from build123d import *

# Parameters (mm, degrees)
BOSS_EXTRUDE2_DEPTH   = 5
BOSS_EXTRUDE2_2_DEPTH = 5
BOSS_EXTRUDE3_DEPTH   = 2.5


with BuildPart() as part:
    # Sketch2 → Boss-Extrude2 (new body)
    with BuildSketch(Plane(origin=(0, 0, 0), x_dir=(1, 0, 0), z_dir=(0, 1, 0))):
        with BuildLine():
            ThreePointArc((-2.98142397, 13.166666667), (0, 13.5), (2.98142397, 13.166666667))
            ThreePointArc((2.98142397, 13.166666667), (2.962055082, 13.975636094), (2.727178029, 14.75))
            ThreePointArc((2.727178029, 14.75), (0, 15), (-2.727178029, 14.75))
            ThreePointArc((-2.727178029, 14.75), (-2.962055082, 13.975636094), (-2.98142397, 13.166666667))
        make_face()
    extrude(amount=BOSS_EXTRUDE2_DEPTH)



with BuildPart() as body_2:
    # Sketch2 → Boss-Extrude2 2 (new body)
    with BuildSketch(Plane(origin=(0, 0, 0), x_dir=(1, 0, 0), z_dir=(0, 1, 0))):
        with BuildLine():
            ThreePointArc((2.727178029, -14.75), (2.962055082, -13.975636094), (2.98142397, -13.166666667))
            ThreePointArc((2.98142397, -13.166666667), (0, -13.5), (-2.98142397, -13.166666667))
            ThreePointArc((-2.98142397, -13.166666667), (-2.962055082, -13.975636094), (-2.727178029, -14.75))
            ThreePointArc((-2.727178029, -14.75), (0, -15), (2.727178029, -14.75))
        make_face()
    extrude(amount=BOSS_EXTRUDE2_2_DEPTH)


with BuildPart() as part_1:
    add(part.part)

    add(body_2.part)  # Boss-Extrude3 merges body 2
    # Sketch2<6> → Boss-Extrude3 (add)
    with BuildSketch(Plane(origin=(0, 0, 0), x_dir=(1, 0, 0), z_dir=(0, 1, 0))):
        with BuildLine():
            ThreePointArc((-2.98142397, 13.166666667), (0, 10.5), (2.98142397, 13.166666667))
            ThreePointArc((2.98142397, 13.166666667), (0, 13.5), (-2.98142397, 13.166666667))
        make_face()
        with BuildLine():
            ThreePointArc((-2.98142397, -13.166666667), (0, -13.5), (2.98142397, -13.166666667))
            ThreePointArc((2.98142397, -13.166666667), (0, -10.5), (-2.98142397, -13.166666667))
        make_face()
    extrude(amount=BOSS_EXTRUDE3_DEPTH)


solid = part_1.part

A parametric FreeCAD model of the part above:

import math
import FreeCAD as App
import Part
import Sketcher

V = App.Vector

doc = App.newDocument("Part")
params = doc.addObject("Spreadsheet::Sheet", "Params")
for row, (alias, value) in enumerate([
    ("sketch1_radius", "3 mm"),
    ("sketch1_radius2", "15 mm"),
    ("sketch1_radius3", "13.5 mm"),
    ("pad1_length", "5 mm"),
    ("sketch2_radius", "3 mm"),
    ("sketch2_radius2", "15 mm"),
    ("sketch2_radius3", "13.5 mm"),
    ("pad2_length", "5 mm"),
    ("sketch3_radius", "3 mm"),
    ("sketch3_radius2", "13.5 mm"),
    ("pad3_length", "2.5 mm"),
], start=1):
    params.set(f"A{row}", alias)
    params.set(f"B{row}", "=" + value)
    params.setAlias(f"B{row}", alias)

body = doc.addObject("PartDesign::Body", "Body")

# Sketch on XZ plane
sketch1 = doc.addObject("Sketcher::SketchObject", "Sketch")
body.addObject(sketch1)
sketch1.AttachmentSupport = (doc.XZ_Plane, [""])
sketch1.MapMode = "FlatFace"
sketch1.addGeometry([
    Part.ArcOfCircle(Part.Circle(V(0, 0, 0), V(0, 0, 1), 13.5), math.radians(-103), math.radians(-77)),
    Part.ArcOfCircle(Part.Circle(V(0, -13.5, 0), V(0, 0, 1), 3), math.radians(-25), math.radians(6)),
    Part.ArcOfCircle(Part.Circle(V(0, 0, 0), V(0, 0, 1), 15), math.radians(-100), math.radians(-80)),
    Part.ArcOfCircle(Part.Circle(V(0, -13.5, 0), V(0, 0, 1), 3), math.radians(174), math.radians(205)),
], False)
sketch1.addConstraint([
    Sketcher.Constraint("Coincident", 0, 2, 1, 2),
    Sketcher.Constraint("Coincident", 1, 1, 2, 2),
    Sketcher.Constraint("Coincident", 2, 1, 3, 2),
    Sketcher.Constraint("Coincident", 3, 1, 0, 1),
    Sketcher.Constraint("Coincident", 0, 3, -1, 1),
    Sketcher.Constraint("Coincident", 2, 3, -1, 1),
    Sketcher.Constraint("Coincident", 3, 3, 1, 3),
    Sketcher.Constraint("Equal", 1, 3),
    Sketcher.Constraint("PointOnObject", 1, 3, -2),
    Sketcher.Constraint("Radius", 1, 3.0),
    Sketcher.Constraint("Radius", 2, 15.0),
    Sketcher.Constraint("Radius", 0, 13.5),
    Sketcher.Constraint("DistanceY", 1, 3, -1, 1, 13.5),
])
sketch1.setExpression("Constraints[9]", "Params.sketch1_radius")
sketch1.setExpression("Constraints[10]", "Params.sketch1_radius2")
sketch1.setExpression("Constraints[11]", "Params.sketch1_radius3")
pad1 = doc.addObject("PartDesign::Pad", "Pad")
body.addObject(pad1)
pad1.Profile = sketch1
pad1.setExpression("Length", "Params.pad1_length")
pad1.Reversed = True
body2 = doc.addObject("PartDesign::Body", "Body001")

# Sketch on XZ plane
sketch2 = doc.addObject("Sketcher::SketchObject", "Sketch001")
body2.addObject(sketch2)
sketch2.AttachmentSupport = (doc.getObject("XZ_Plane001"), [""])
sketch2.MapMode = "FlatFace"
sketch2.addGeometry([
    Part.ArcOfCircle(Part.Circle(V(0, 13.5, 0), V(0, 0, 1), 3), math.radians(-6), math.radians(25)),
    Part.ArcOfCircle(Part.Circle(V(0, 0, 0), V(0, 0, 1), 13.5), math.radians(77), math.radians(103)),
    Part.ArcOfCircle(Part.Circle(V(0, 13.5, 0), V(0, 0, 1), 3), math.radians(155), math.radians(186)),
    Part.ArcOfCircle(Part.Circle(V(0, 0, 0), V(0, 0, 1), 15), math.radians(80), math.radians(100)),
], False)
sketch2.addConstraint([
    Sketcher.Constraint("Coincident", 0, 1, 1, 1),
    Sketcher.Constraint("Coincident", 1, 2, 2, 2),
    Sketcher.Constraint("Coincident", 2, 1, 3, 2),
    Sketcher.Constraint("Coincident", 3, 1, 0, 2),
    Sketcher.Constraint("Coincident", 1, 3, -1, 1),
    Sketcher.Constraint("Coincident", 3, 3, -1, 1),
    Sketcher.Constraint("Coincident", 2, 3, 0, 3),
    Sketcher.Constraint("Equal", 0, 2),
    Sketcher.Constraint("PointOnObject", 0, 3, -2),
    Sketcher.Constraint("Radius", 0, 3.0),
    Sketcher.Constraint("Radius", 3, 15.0),
    Sketcher.Constraint("Radius", 1, 13.5),
    Sketcher.Constraint("DistanceY", -1, 1, 0, 3, 13.5),
])
sketch2.setExpression("Constraints[9]", "Params.sketch2_radius")
sketch2.setExpression("Constraints[10]", "Params.sketch2_radius2")
sketch2.setExpression("Constraints[11]", "Params.sketch2_radius3")
pad2 = doc.addObject("PartDesign::Pad", "Pad001")
body2.addObject(pad2)
pad2.Profile = sketch2
pad2.setExpression("Length", "Params.pad2_length")
pad2.Reversed = True
body.AllowCompound = True
doc.recompute()

boolean = doc.addObject("PartDesign::Boolean", "Boolean")
body.addObject(boolean)
boolean.Type = "Fuse"
boolean.addObjects([body2])

# Sketch on XZ plane
sketch3 = doc.addObject("Sketcher::SketchObject", "Sketch002")
body.addObject(sketch3)
sketch3.AttachmentSupport = (doc.XZ_Plane, [""])
sketch3.MapMode = "FlatFace"
sketch3.addGeometry([
    Part.ArcOfCircle(Part.Circle(V(0, -13.5, 0), V(0, 0, 1), 3), math.radians(6), math.radians(174)),
    Part.ArcOfCircle(Part.Circle(V(0, 0, 0), V(0, 0, 1), 13.5), math.radians(-103), math.radians(-77)),
    Part.ArcOfCircle(Part.Circle(V(0, 0, 0), V(0, 0, 1), 13.5), math.radians(77), math.radians(103)),
    Part.ArcOfCircle(Part.Circle(V(0, 13.5, 0), V(0, 0, 1), 3), math.radians(-174), math.radians(-6)),
], False)
sketch3.addConstraint([
    Sketcher.Constraint("Coincident", 0, 1, 1, 2),
    Sketcher.Constraint("Coincident", 1, 1, 0, 2),
    Sketcher.Constraint("Coincident", 2, 1, 3, 2),
    Sketcher.Constraint("Coincident", 3, 1, 2, 2),
    Sketcher.Constraint("Coincident", 1, 3, -1, 1),
    Sketcher.Constraint("Coincident", 2, 3, -1, 1),
    Sketcher.Constraint("Equal", 1, 2),
    Sketcher.Constraint("Equal", 0, 3),
    Sketcher.Constraint("Symmetric", 0, 3, 3, 3, -1, 1),
    Sketcher.Constraint("PointOnObject", 0, 3, -2),
    Sketcher.Constraint("Radius", 0, 3.0),
    Sketcher.Constraint("Radius", 1, 13.5),
    Sketcher.Constraint("DistanceY", 0, 3, 3, 3, 27.0),
])
sketch3.setExpression("Constraints[10]", "Params.sketch3_radius")
sketch3.setExpression("Constraints[11]", "Params.sketch3_radius2")
pad3 = doc.addObject("PartDesign::Pad", "Pad002")
body.addObject(pad3)
pad3.Profile = sketch3
pad3.setExpression("Length", "Params.pad3_length")
pad3.Reversed = True

doc.recompute()
